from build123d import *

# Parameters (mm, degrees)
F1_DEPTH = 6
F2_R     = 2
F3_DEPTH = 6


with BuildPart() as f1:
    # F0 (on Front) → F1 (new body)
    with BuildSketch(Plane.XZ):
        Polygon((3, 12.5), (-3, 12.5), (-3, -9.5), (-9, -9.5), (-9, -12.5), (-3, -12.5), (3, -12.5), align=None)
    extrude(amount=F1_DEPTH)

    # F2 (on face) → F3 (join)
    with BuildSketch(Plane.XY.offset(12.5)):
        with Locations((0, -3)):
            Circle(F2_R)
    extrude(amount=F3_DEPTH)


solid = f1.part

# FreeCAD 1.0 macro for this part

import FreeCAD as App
import Part
import Sketcher
from FreeCAD import Vector


def add_polygon(sketch, points):
    """Adds a closed chain of lines whose ends are joined by coincident constraints."""
    first, n = sketch.GeometryCount, len(points)
    for a, b in zip(points, points[1:] + points[:1]):
        sketch.addGeometry(Part.LineSegment(App.Vector(*a, 0), App.Vector(*b, 0)), False)
    for i in range(n):
        sketch.addConstraint(Sketcher.Constraint("Coincident", first + i, 2, first + (i + 1) % n, 1))

doc = App.newDocument("Part")
body = doc.addObject("PartDesign::Body", "Body")

# Sketch on XZ plane
sketch1 = body.newObject("Sketcher::SketchObject", "Sketch")
sketch1.AttachmentSupport = (doc.getObject("XZ_Plane"), [""])
sketch1.MapMode = "FlatFace"
add_polygon(sketch1, [(3, 12.5), (-3, 12.5), (-3, -9.5), (-9, -9.5), (-9, -12.5), (3, -12.5)])  # lines 0-5
sketch1.addConstraint([
    Sketcher.Constraint("Horizontal", 0),
    Sketcher.Constraint("Vertical", 1),
    Sketcher.Constraint("Horizontal", 2),
    Sketcher.Constraint("Vertical", 3),
    Sketcher.Constraint("Horizontal", 4),
    Sketcher.Constraint("Vertical", 5),
    Sketcher.Constraint("Symmetric", 0, 2, 4, 2, -1, 1),
    Sketcher.Constraint("Equal", 0, 2),
    Sketcher.Constraint("DistanceX", 0, 2, 0, 1, 6.0),
    Sketcher.Constraint("DistanceY", 1, 2, 1, 1, 22.0),
    Sketcher.Constraint("DistanceY", 3, 2, 3, 1, 3.0),
])
pad1 = body.newObject("PartDesign::Pad", "Pad")
pad1.Profile = sketch1
pad1.Length = 6

# Sketch on XY plane
sketch2 = body.newObject("Sketcher::SketchObject", "Sketch001")
sketch2.AttachmentSupport = (doc.getObject("XY_Plane"), [""])
sketch2.MapMode = "FlatFace"
sketch2.AttachmentOffset = App.Placement(Vector(0, 0, 12.5), App.Rotation())
sketch2.addGeometry(Part.Circle(Vector(0, -3, 0), Vector(0, 0, 1), 2), False)
sketch2.addConstraint([
    Sketcher.Constraint("PointOnObject", 0, 3, -2),
    Sketcher.Constraint("Diameter", 0, 4.0),
    Sketcher.Constraint("DistanceY", 0, 3, -1, 1, 3.0),
])
pad2 = body.newObject("PartDesign::Pad", "Pad001")
pad2.Profile = sketch2
pad2.Length = 6

doc.recompute()
